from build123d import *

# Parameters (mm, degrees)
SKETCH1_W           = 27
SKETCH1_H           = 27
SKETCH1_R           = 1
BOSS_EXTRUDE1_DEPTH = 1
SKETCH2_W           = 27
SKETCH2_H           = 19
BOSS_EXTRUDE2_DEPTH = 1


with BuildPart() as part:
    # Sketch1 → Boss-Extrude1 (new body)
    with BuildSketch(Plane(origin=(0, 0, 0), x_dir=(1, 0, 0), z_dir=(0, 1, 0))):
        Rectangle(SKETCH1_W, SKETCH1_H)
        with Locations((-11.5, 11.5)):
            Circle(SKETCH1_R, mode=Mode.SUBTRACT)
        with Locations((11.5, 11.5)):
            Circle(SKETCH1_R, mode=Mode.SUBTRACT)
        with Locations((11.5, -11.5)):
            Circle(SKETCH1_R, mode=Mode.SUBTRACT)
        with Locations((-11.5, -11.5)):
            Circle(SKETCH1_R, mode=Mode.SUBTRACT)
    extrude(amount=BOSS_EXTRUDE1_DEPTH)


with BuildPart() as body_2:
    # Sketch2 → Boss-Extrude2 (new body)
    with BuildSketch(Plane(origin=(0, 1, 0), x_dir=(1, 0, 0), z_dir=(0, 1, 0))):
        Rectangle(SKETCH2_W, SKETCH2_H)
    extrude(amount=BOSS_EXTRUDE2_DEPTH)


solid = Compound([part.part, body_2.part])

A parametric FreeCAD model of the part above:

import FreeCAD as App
import Part
import Sketcher

V = App.Vector
Q = App.Units.Quantity


def add_polygon(sketch, points):
    """Adds a closed chain of lines whose ends are joined by coincident constraints."""
    first, n = sketch.GeometryCount, len(points)
    for a, b in zip(points, points[1:] + points[:1]):
        sketch.addGeometry(Part.LineSegment(App.Vector(*a, 0), App.Vector(*b, 0)), False)
    for i in range(n):
        sketch.addConstraint(Sketcher.Constraint("Coincident", first + i, 2, first + (i + 1) % n, 1))

doc = App.newDocument("Part")
body = doc.addObject("PartDesign::Body", "Body")

sketch1 = body.newObject("Sketcher::SketchObject", "Sketch")
sketch1.AttachmentSupport = (doc.getObject("XZ_Plane"), [""])
sketch1.MapMode = "FlatFace"
add_polygon(sketch1, [(-13.5, -13.5), (-13.5, 13.5), (13.5, 13.5), (13.5, -13.5)])
sketch1.addGeometry(Part.Circle(V(-11.5, 11.5, 0), V(0, 0, 1), 1), False)
sketch1.addGeometry(Part.Circle(V(11.5, 11.5, 0), V(0, 0, 1), 1), False)
sketch1.addGeometry(Part.Circle(V(-11.5, -11.5, 0), V(0, 0, 1), 1), False)
sketch1.addGeometry(Part.Circle(V(11.5, -11.5, 0), V(0, 0, 1), 1), False)
sketch1.addConstraint([
    Sketcher.Constraint("Vertical", 0),
    Sketcher.Constraint("Horizontal", 1),
    Sketcher.Constraint("Vertical", 2),
    Sketcher.Constraint("Horizontal", 3),
    Sketcher.Constraint("Equal", 4, 5),
    Sketcher.Constraint("Equal", 5, 6),
    Sketcher.Constraint("Equal", 6, 7),
    Sketcher.Constraint("Symmetric", 5, 3, 6, 3, -1, 1),
    Sketcher.Constraint("Symmetric", 4, 3, 7, 3, -1, 1),
    Sketcher.Constraint("Symmetric", 0, 2, 2, 2, -1, 1),
    Sketcher.Constraint("Symmetric", 4, 3, 5, 3, -2),
    Sketcher.Constraint("Equal", 3, 0),
    Sketcher.Constraint("Diameter", 4, Q("2 mm")),
    Sketcher.Constraint("DistanceX", 1, 1, 1, 2, Q("27 mm")),
    Sketcher.Constraint("DistanceX", 4, 3, 5, 3, Q("23 mm")),
    Sketcher.Constraint("DistanceY", 6, 3, 4, 3, Q("23 mm")),
])
pad1 = body.newObject("PartDesign::Pad", "Pad")
pad1.Profile = sketch1
pad1.Length = 1
pad1.Reversed = True
body2 = doc.addObject("PartDesign::Body", "Body001")

sketch2 = body2.newObject("Sketcher::SketchObject", "Sketch001")
sketch2.AttachmentSupport = (doc.getObject("XZ_Plane001"), [""])
sketch2.MapMode = "FlatFace"
sketch2.AttachmentOffset = App.Placement(V(0, 0, -1), App.Rotation())
add_polygon(sketch2, [(-14, -10), (-14, 10), (14, 10), (14, -10)])
sketch2.addConstraint([
    Sketcher.Constraint("Vertical", 0),
    Sketcher.Constraint("Horizontal", 1),
    Sketcher.Constraint("Vertical", 2),
    Sketcher.Constraint("Horizontal", 3),
    Sketcher.Constraint("Symmetric", 0, 2, 2, 2, -1, 1),
    Sketcher.Constraint("DistanceX", 1, 1, 1, 2, Q("27 mm")),
    Sketcher.Constraint("DistanceY", 0, 1, 0, 2, Q("19 mm")),
])
pad2 = body2.newObject("PartDesign::Pad", "Pad001")
pad2.Profile = sketch2
pad2.Length = 1
pad2.Reversed = True

doc.recompute()
